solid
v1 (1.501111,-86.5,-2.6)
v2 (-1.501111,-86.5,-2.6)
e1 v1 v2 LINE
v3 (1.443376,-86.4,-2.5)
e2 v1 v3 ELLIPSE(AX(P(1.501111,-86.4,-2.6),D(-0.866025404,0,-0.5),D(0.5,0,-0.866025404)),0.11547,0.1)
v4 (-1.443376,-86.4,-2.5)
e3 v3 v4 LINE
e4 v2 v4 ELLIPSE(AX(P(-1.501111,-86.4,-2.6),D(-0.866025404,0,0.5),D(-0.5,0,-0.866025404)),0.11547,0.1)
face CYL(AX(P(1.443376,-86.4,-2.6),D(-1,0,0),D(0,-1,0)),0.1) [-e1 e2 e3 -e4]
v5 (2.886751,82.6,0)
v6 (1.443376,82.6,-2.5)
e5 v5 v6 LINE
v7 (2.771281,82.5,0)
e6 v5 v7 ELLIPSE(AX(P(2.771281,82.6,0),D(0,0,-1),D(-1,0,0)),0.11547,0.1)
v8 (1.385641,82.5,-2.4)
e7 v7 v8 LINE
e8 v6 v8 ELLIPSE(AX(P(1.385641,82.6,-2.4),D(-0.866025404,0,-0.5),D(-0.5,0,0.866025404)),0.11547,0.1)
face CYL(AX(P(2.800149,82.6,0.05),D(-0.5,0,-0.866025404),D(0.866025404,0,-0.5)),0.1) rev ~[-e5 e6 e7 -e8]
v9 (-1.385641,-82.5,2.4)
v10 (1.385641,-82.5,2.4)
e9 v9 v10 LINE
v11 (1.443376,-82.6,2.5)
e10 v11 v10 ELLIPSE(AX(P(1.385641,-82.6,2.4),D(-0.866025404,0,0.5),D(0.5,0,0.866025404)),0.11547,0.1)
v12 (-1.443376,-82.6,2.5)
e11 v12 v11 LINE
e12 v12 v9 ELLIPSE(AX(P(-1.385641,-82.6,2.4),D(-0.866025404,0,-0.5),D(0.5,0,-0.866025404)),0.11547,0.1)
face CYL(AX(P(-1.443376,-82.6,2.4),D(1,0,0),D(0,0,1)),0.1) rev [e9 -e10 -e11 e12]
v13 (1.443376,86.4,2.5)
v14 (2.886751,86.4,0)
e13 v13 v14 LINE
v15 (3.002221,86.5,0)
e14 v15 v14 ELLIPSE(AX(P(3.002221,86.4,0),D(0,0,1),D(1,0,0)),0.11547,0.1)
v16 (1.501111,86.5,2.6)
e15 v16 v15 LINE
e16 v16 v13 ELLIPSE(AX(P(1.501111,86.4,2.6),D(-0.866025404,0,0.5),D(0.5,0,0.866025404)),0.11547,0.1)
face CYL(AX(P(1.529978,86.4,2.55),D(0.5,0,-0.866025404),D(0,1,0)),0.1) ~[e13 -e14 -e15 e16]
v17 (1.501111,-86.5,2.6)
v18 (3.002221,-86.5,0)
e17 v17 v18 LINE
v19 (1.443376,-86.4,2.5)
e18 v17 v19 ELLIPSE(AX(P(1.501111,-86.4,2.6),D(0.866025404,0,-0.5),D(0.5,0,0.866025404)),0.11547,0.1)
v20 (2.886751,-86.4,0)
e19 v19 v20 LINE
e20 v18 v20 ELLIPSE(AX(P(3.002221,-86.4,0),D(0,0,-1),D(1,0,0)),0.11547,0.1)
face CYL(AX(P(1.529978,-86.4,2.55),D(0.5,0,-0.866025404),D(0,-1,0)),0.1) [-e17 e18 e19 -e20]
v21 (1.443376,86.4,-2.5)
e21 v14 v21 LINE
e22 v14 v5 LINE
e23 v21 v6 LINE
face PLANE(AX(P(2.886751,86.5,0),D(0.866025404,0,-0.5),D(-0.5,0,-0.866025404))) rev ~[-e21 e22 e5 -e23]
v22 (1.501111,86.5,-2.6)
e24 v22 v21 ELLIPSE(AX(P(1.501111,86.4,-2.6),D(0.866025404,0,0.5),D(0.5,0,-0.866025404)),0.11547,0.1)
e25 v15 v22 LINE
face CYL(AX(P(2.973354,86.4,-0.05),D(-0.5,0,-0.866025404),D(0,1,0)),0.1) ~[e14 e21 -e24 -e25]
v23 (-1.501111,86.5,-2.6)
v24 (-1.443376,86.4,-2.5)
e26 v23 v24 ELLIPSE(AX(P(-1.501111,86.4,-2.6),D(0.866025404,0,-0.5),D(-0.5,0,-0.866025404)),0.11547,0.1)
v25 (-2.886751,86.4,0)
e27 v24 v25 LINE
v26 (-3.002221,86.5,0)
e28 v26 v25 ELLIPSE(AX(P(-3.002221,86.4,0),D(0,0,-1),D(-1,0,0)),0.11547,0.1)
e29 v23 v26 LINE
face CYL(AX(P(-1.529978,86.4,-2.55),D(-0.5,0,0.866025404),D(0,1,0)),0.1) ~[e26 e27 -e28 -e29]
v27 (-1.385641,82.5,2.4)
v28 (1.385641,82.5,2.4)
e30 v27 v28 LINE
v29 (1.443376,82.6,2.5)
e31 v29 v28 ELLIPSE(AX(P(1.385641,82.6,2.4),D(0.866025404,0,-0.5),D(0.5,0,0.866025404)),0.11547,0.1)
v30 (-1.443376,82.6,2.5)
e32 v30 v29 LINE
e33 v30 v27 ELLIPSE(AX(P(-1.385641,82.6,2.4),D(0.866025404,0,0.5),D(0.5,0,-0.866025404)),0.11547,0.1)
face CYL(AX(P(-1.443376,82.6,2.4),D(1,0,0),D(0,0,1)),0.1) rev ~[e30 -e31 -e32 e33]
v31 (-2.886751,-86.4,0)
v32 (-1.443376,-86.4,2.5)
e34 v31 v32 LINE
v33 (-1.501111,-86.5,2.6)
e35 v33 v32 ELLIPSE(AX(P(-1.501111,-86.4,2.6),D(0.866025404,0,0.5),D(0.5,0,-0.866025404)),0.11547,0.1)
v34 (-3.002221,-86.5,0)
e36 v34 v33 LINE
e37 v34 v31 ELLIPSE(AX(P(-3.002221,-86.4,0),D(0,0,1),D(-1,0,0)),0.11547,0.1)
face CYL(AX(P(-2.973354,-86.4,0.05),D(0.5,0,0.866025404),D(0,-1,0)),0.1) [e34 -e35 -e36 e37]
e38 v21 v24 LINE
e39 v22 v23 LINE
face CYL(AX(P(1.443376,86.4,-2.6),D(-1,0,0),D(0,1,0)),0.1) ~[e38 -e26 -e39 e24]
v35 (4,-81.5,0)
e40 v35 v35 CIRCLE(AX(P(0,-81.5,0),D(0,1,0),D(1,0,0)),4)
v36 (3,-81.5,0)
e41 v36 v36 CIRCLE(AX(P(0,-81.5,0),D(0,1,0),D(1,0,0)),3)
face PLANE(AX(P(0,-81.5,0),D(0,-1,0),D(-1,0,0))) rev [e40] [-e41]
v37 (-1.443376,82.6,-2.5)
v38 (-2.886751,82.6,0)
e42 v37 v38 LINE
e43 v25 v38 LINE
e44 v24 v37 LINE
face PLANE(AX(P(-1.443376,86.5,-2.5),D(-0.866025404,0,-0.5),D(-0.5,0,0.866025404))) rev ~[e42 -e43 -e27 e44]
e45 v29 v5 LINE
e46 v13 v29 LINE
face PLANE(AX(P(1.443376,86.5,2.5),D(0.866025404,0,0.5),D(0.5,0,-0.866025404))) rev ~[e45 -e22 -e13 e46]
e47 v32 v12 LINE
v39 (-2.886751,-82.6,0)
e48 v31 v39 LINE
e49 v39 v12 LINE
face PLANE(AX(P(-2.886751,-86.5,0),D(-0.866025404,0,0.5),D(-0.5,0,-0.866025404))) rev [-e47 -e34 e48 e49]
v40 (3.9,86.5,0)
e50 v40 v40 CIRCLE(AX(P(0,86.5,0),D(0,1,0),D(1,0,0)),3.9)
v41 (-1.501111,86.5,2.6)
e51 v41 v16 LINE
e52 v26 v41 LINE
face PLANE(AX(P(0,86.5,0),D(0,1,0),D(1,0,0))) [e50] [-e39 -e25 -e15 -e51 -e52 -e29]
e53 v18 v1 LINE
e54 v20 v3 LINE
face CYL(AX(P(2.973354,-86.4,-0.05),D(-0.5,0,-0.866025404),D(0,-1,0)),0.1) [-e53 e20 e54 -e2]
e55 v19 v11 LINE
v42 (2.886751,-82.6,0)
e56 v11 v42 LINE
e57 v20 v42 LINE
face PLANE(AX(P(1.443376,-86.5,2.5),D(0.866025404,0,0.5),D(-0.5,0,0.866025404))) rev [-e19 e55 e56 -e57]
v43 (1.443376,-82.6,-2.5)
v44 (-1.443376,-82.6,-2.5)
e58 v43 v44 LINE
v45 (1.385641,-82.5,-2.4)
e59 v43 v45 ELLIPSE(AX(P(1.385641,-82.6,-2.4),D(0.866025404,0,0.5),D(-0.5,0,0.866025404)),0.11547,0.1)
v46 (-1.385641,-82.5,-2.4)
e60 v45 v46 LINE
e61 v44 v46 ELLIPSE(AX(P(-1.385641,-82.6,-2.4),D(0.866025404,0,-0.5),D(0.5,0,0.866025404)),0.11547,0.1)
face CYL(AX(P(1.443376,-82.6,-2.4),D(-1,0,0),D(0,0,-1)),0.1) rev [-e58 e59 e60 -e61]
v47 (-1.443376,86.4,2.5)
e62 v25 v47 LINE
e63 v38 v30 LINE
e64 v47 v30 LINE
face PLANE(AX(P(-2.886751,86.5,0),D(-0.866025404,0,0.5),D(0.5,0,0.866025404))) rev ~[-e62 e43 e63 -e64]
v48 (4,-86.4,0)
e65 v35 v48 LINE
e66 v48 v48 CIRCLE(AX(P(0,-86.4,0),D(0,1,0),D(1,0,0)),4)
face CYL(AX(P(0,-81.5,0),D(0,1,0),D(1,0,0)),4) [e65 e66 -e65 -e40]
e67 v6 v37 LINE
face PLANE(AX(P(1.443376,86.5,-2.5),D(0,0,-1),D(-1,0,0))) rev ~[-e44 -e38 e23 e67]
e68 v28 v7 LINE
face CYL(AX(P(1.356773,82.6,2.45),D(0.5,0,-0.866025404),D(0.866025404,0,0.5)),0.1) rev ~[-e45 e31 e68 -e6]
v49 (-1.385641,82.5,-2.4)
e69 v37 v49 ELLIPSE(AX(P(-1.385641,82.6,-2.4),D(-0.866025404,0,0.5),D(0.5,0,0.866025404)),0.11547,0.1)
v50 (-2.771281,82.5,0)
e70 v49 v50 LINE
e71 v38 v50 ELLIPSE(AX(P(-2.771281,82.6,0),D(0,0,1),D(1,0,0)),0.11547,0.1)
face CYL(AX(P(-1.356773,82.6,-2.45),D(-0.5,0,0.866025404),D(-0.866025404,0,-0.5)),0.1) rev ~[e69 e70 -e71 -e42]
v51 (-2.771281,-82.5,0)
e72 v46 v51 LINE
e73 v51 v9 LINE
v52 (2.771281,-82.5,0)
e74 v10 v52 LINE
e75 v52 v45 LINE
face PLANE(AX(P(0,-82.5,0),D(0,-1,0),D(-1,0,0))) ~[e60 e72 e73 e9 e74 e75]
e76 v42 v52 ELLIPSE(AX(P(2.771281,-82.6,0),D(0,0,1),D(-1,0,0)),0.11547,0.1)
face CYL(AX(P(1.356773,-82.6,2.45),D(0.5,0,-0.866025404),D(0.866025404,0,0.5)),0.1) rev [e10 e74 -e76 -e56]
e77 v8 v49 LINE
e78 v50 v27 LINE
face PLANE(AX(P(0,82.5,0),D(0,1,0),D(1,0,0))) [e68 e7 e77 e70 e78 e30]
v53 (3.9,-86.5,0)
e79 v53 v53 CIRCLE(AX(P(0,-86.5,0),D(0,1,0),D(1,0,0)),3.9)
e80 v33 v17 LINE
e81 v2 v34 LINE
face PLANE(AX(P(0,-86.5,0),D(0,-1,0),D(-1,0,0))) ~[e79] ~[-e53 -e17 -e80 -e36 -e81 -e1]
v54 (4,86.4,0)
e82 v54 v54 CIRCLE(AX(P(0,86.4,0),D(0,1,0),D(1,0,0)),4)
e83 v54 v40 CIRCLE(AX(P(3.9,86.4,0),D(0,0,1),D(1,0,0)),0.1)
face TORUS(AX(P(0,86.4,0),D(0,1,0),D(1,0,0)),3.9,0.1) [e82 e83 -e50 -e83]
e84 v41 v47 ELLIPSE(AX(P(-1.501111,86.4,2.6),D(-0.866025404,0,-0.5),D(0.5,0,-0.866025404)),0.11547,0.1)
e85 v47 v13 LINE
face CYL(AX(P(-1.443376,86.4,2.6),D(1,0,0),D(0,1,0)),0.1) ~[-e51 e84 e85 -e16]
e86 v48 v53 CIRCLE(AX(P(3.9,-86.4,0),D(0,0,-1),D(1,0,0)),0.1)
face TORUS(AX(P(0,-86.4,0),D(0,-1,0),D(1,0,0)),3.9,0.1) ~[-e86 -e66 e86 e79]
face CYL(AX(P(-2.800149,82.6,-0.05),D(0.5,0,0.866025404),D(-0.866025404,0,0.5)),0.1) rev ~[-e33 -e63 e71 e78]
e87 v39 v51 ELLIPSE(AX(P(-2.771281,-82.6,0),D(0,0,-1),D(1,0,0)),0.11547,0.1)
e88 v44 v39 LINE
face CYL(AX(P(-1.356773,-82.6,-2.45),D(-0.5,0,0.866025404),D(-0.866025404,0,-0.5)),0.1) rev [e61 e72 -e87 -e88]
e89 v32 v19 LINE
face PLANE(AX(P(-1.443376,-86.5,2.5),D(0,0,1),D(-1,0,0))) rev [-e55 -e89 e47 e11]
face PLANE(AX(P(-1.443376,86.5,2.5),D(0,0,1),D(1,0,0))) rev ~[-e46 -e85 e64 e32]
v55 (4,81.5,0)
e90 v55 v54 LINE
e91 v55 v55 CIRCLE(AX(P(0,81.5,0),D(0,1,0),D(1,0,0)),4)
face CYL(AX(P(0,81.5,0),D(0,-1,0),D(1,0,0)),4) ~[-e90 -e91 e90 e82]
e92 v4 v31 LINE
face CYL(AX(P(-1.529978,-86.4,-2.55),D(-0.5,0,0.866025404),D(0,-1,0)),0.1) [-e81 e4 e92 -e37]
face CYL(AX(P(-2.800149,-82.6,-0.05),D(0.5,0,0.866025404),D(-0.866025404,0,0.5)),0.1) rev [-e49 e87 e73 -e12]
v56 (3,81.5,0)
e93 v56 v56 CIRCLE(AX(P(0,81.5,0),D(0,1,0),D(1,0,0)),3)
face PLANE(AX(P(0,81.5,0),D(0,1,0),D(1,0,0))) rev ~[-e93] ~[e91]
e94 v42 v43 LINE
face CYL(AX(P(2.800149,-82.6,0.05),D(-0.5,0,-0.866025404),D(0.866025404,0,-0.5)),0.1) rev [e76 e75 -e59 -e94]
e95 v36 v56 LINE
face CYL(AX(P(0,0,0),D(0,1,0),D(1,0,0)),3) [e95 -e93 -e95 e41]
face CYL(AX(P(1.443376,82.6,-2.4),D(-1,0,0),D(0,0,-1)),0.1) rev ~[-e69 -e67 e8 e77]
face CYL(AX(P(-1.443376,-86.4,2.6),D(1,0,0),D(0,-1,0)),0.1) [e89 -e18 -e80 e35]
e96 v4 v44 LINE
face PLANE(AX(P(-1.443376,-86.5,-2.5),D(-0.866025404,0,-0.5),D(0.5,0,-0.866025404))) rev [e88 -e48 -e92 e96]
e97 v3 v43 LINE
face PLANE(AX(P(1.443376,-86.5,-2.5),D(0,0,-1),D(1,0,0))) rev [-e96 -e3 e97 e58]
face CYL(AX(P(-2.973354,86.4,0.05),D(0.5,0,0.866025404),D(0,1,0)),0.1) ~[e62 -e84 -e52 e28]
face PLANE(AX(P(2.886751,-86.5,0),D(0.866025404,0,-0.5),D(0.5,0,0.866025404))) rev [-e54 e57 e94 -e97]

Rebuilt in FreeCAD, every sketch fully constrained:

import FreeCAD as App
import Part
import Sketcher
Q = App.Units.Quantity


def edges_at(feature, points):
    """Names of the edges that pass closest to the given points."""
    edges = feature.Shape.Edges
    near = lambda p: min(range(len(edges)), key=lambda i: edges[i].distToShape(Part.Vertex(*p))[0])
    return sorted({f"Edge{near(p) + 1}" for p in points})

doc = App.newDocument("Part")
body = doc.addObject("PartDesign::Body", "Body")

sketch1 = doc.addObject("Sketcher::SketchObject", "Sketch")
body.addObject(sketch1)
sketch1.AttachmentSupport = (doc.XZ_Plane, [""])
sketch1.MapMode = "FlatFace"
sketch1.addGeometry(Part.Circle(App.Vector(0, 0, 0), App.Vector(0, 0, 1), 3), False)
sketch1.addConstraint([
    Sketcher.Constraint("Coincident", 0, 3, -1, 1),
    Sketcher.Constraint("Diameter", 0, 6.0),
])
pad1 = doc.addObject("PartDesign::Pad", "Pad")
body.addObject(pad1)
pad1.Profile = sketch1
pad1.Length = 163
pad1.Midplane = True

sketch2 = doc.addObject("Sketcher::SketchObject", "Sketch001")
body.addObject(sketch2)
sketch2.AttachmentSupport = (doc.XZ_Plane, [""])
sketch2.MapMode = "FlatFace"
sketch2.AttachmentOffset = App.Placement(App.Vector(0, 0, -81.5), App.Rotation())
sketch2.addGeometry(Part.Circle(App.Vector(0, 0, 0), App.Vector(0, 0, 1), 4), False)
sketch2.addConstraint([
    Sketcher.Constraint("Coincident", 0, 3, -1, 1),
    Sketcher.Constraint("Diameter", 0, 8.0),
])
pad2 = doc.addObject("PartDesign::Pad", "Pad001")
body.addObject(pad2)
pad2.Profile = sketch2
pad2.Length = 5
pad2.Reversed = True

sketch3 = doc.addObject("Sketcher::SketchObject", "Sketch002")
body.addObject(sketch3)
sketch3.AttachmentSupport = (doc.XZ_Plane, [""])
sketch3.MapMode = "FlatFace"
sketch3.AttachmentOffset = App.Placement(App.Vector(0, 0, -86.5), App.Rotation())
sketch3.addGeometry([
    Part.LineSegment(App.Vector(1.4, 2.5, 0), App.Vector(2.9, 0, 0)),
    Part.LineSegment(App.Vector(2.9, 0, 0), App.Vector(1.4, -2.5, 0)),
    Part.LineSegment(App.Vector(1.4, -2.5, 0), App.Vector(-1.4, -2.5, 0)),
    Part.LineSegment(App.Vector(-1.4, -2.5, 0), App.Vector(-2.9, 0, 0)),
    Part.LineSegment(App.Vector(-2.9, 0, 0), App.Vector(-1.4, 2.5, 0)),
    Part.LineSegment(App.Vector(-1.4, 2.5, 0), App.Vector(1.4, 2.5, 0)),
], False)
sketch3.addConstraint([
    Sketcher.Constraint("Coincident", 0, 2, 1, 1),
    Sketcher.Constraint("Coincident", 1, 2, 2, 1),
    Sketcher.Constraint("Coincident", 2, 2, 3, 1),
    Sketcher.Constraint("Coincident", 3, 2, 4, 1),
    Sketcher.Constraint("Coincident", 4, 2, 5, 1),
    Sketcher.Constraint("Coincident", 5, 2, 0, 1),
    Sketcher.Constraint("Horizontal", 2),
    Sketcher.Constraint("Horizontal", 5),
    Sketcher.Constraint("Symmetric", 0, 2, 3, 2, -1, 1),
    Sketcher.Constraint("Symmetric", 1, 2, 4, 2, -1, 1),
    Sketcher.Constraint("PointOnObject", 0, 2, -1),
    Sketcher.Constraint("Parallel", 0, 3),
    Sketcher.Constraint("Vertical", 2, 2, 4, 2),
    Sketcher.Constraint("Angle", 0, Q("-60 deg")),
    Sketcher.Constraint("DistanceY", 2, 2, 4, 2, 5.0),
    Sketcher.Constraint("DistanceX", 2, 2, 2, 1, 2.886751),
])
pocket1 = doc.addObject("PartDesign::Pocket", "Pocket")
body.addObject(pocket1)
pocket1.Profile = sketch3
pocket1.Length = 4
pocket1.Reversed = True
doc.recompute()

fillet = doc.addObject("PartDesign::Fillet", "Fillet")
body.addObject(fillet)
fillet.Base = (pocket1, edges_at(pocket1, [
    (0, 82.5, 2.5),
    (-2.165, 82.5, 1.25),
    (-2.165, 82.5, -1.25),
    (0, 82.5, -2.5),
    (2.165, 82.5, -1.25),
    (2.165, 82.5, 1.25),
    (0, 86.5, 2.5),
    (2.165, 86.5, 1.25),
    (2.165, 86.5, -1.25),
    (0, 86.5, -2.5),
    (-2.165, 86.5, -1.25),
    (-2.165, 86.5, 1.25),
    (-4, 86.5, 0),
]))
fillet.Radius = 0.1
doc.recompute()

mirrored = doc.addObject("PartDesign::Mirrored", "Mirrored")
body.addObject(mirrored)
mirrored.Originals = [pad2, pocket1]
mirrored.MirrorPlane = (doc.XZ_Plane, [""])
body.Tip = mirrored
doc.recompute()

fillet2 = doc.addObject("PartDesign::Fillet", "Fillet001")
body.addObject(fillet2)
fillet2.Base = (mirrored, edges_at(mirrored, [
    (0, -82.5, 2.5),
    (-2.165, -82.5, 1.25),
    (-2.165, -82.5, -1.25),
    (0, -82.5, -2.5),
    (2.165, -82.5, -1.25),
    (2.165, -82.5, 1.25),
    (0, -86.5, 2.5),
    (2.165, -86.5, 1.25),
    (2.165, -86.5, -1.25),
    (0, -86.5, -2.5),
    (-2.165, -86.5, -1.25),
    (-2.165, -86.5, 1.25),
    (-4, -86.5, 0),
]))
fillet2.Radius = 0.1

doc.recompute()
